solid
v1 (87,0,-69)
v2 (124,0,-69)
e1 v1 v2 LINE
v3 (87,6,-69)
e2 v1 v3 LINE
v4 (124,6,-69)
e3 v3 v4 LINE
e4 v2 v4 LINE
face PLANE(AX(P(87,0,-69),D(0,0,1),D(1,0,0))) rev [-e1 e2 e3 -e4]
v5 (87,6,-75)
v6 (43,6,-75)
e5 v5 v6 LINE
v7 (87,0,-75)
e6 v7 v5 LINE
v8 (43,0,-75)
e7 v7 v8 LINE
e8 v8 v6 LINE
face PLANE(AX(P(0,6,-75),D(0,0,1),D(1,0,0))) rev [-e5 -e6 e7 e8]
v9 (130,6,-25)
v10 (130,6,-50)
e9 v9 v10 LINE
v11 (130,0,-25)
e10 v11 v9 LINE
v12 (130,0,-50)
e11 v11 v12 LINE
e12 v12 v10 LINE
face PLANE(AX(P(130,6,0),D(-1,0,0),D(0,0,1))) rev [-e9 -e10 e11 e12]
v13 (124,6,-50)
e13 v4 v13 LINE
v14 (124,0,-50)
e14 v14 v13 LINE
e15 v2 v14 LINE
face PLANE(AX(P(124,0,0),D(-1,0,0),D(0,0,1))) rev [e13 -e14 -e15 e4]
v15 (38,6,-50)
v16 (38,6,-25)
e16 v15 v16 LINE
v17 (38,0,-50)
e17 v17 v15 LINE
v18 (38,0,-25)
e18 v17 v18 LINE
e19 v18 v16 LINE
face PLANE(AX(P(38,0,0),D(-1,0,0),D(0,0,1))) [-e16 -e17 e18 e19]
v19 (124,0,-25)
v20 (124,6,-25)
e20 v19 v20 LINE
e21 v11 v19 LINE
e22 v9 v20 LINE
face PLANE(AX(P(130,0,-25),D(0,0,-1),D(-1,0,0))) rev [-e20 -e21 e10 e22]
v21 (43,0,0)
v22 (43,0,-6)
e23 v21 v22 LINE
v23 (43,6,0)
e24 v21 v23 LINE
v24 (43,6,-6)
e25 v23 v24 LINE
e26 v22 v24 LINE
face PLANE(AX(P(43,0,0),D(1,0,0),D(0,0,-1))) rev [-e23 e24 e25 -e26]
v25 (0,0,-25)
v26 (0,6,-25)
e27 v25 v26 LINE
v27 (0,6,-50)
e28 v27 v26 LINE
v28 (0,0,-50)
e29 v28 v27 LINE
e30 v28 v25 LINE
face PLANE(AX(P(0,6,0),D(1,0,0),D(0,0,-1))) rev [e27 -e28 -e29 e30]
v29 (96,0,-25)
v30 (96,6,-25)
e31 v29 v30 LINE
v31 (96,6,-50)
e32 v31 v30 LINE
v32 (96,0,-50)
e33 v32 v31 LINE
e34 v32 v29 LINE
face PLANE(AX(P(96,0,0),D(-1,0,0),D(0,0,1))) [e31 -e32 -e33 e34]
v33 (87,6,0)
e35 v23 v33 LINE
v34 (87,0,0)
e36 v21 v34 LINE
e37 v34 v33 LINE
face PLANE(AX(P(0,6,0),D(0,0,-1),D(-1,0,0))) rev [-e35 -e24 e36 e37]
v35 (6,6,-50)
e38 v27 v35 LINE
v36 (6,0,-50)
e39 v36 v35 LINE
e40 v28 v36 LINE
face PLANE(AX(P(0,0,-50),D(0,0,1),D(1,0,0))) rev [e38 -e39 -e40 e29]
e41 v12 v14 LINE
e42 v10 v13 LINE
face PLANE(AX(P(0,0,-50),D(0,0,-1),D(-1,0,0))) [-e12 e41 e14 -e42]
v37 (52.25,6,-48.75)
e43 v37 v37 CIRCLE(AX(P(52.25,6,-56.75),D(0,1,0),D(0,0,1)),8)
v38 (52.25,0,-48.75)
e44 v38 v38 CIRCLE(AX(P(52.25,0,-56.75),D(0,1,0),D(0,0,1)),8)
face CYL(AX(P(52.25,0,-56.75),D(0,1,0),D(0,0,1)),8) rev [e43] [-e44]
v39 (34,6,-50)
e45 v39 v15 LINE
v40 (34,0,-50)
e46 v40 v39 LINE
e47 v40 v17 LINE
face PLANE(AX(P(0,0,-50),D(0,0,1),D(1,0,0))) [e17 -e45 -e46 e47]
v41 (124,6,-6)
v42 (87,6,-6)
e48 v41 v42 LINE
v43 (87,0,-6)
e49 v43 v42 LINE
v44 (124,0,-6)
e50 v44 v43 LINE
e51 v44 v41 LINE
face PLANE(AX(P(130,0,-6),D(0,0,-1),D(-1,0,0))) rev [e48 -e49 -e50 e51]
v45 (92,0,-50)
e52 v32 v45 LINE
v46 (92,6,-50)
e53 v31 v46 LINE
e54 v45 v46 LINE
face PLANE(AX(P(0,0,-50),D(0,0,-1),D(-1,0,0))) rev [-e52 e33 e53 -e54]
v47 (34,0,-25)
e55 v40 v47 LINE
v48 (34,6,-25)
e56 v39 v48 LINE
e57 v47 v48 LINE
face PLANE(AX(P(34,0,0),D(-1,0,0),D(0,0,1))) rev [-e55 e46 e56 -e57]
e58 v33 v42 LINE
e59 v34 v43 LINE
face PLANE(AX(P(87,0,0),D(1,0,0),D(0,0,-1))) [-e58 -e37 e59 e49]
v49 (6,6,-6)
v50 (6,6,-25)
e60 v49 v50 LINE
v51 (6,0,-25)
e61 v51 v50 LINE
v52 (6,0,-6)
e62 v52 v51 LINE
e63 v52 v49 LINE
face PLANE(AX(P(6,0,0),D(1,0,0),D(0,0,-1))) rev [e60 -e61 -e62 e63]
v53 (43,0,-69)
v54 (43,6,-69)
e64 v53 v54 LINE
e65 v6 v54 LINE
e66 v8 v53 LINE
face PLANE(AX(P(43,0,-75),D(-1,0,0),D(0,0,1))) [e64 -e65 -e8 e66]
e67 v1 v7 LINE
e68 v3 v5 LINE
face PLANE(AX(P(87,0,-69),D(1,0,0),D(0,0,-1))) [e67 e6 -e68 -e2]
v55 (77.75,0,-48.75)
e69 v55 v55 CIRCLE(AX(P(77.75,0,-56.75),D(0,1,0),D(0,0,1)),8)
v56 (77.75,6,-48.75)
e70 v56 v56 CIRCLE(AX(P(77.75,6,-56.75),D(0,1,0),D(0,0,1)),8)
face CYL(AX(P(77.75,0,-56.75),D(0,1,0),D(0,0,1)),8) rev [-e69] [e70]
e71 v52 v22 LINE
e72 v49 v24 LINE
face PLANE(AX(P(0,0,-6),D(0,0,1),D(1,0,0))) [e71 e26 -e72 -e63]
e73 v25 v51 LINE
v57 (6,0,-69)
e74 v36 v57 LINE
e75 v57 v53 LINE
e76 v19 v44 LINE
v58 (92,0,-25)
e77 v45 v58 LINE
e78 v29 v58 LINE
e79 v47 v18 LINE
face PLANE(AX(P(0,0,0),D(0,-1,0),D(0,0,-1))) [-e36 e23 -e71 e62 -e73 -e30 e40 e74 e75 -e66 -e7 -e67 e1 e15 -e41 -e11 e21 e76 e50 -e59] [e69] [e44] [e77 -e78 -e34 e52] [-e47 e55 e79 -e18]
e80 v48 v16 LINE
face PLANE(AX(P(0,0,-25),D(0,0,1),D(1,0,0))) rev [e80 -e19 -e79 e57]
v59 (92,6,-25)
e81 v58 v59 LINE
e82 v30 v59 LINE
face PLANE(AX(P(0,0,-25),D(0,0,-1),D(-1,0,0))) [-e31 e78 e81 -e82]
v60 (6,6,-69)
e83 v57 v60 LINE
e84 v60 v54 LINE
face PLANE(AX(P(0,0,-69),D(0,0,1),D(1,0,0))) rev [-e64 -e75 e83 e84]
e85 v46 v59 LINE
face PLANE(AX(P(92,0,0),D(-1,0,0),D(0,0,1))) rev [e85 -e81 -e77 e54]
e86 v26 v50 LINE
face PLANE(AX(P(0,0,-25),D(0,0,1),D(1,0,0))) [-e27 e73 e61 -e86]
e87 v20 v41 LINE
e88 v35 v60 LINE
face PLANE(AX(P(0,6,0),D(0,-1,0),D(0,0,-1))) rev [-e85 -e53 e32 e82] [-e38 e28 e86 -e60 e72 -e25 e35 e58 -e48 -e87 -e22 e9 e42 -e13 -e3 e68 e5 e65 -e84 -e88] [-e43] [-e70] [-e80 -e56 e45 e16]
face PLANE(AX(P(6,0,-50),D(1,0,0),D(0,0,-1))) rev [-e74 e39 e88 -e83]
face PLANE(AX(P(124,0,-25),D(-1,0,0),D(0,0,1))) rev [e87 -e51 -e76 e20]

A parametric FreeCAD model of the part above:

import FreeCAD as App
import Part
import Sketcher
from FreeCAD import Vector


def add_polygon(sketch, points):
    """Adds a closed chain of lines whose ends are joined by coincident constraints."""
    first, n = sketch.GeometryCount, len(points)
    for a, b in zip(points, points[1:] + points[:1]):
        sketch.addGeometry(Part.LineSegment(App.Vector(*a, 0), App.Vector(*b, 0)), False)
    for i in range(n):
        sketch.addConstraint(Sketcher.Constraint("Coincident", first + i, 2, first + (i + 1) % n, 1))

doc = App.newDocument("Part")
body = doc.addObject("PartDesign::Body", "Body")

sketch1 = body.newObject("Sketcher::SketchObject", "Sketch")
sketch1.AttachmentSupport = (doc.getObject("XZ_Plane"), [""])
sketch1.MapMode = "FlatFace"
add_polygon(sketch1, [(0, -75), (0, 0), (130, 0), (130, -75)])
sketch1.addConstraint([
    Sketcher.Constraint("Vertical", 0),
    Sketcher.Constraint("Horizontal", 1),
    Sketcher.Constraint("Vertical", 2),
    Sketcher.Constraint("Horizontal", 3),
    Sketcher.Constraint("Coincident", 0, 2, -1, 1),
    Sketcher.Constraint("DistanceX", 1, 1, 1, 2, 130.0),
    Sketcher.Constraint("DistanceY", 0, 1, 0, 2, 75.0),
])
pad1 = body.newObject("PartDesign::Pad", "Pad")
pad1.Profile = sketch1
pad1.Length = 6
pad1.Reversed = True

sketch2 = body.newObject("Sketcher::SketchObject", "Sketch001")
sketch2.AttachmentSupport = (doc.getObject("XZ_Plane"), [""])
sketch2.MapMode = "FlatFace"
sketch2.AttachmentOffset = App.Placement(Vector(0, 0, -6), App.Rotation())
sketch2.addGeometry([
    Part.Circle(Vector(52.25, -56.75, 0), Vector(0, 0, 1), 8),
    Part.Circle(Vector(77.75, -56.75, 0), Vector(0, 0, 1), 8),
], False)
sketch2.addConstraint([
    Sketcher.Constraint("Equal", 0, 1),
    Sketcher.Constraint("Horizontal", 0, 3, 1, 3),
    Sketcher.Constraint("Diameter", 0, 16.0),
    Sketcher.Constraint("DistanceX", 0, 3, 1, 3, 25.5),
    Sketcher.Constraint("DistanceX", -1, 1, 0, 3, 52.25),
    Sketcher.Constraint("DistanceY", 0, 3, -1, 1, 56.75),
])
pocket1 = body.newObject("PartDesign::Pocket", "Pocket")
pocket1.Profile = sketch2
pocket1.Length = 6
pocket1.Reversed = True

sketch3 = body.newObject("Sketcher::SketchObject", "Sketch002")
sketch3.AttachmentSupport = (doc.getObject("XZ_Plane"), [""])
sketch3.MapMode = "FlatFace"
sketch3.AttachmentOffset = App.Placement(Vector(0, 0, -6), App.Rotation())
add_polygon(sketch3, [(0, 0), (43, 0), (43, -6), (6, -6), (6, -25), (0, -25)])
add_polygon(sketch3, [(0, -50), (6, -50), (6, -69), (43, -69), (43, -75), (0, -75)])
add_polygon(sketch3, [(34, -50), (34, -25), (38, -25), (38, -50)])
add_polygon(sketch3, [(87, -6), (87, 0), (130, 0), (130, -25), (124, -25), (124, -6)])
add_polygon(sketch3, [(92, -50), (92, -25), (96, -25), (96, -50)])
add_polygon(sketch3, [(87, -75), (87, -69), (124, -69), (124, -50), (130, -50), (130, -75)])
sketch3.addConstraint([
    Sketcher.Constraint("Horizontal", 0),
    Sketcher.Constraint("Vertical", 1),
    Sketcher.Constraint("Horizontal", 2),
    Sketcher.Constraint("Vertical", 3),
    Sketcher.Constraint("Horizontal", 4),
    Sketcher.Constraint("Vertical", 5),
    Sketcher.Constraint("Horizontal", 6),
    Sketcher.Constraint("Vertical", 7),
    Sketcher.Constraint("Horizontal", 8),
    Sketcher.Constraint("Vertical", 9),
    Sketcher.Constraint("Horizontal", 10),
    Sketcher.Constraint("Vertical", 11),
    Sketcher.Constraint("Vertical", 12),
    Sketcher.Constraint("Horizontal", 13),
    Sketcher.Constraint("Vertical", 14),
    Sketcher.Constraint("Horizontal", 15),
    Sketcher.Constraint("Vertical", 16),
    Sketcher.Constraint("Horizontal", 17),
    Sketcher.Constraint("Vertical", 18),
    Sketcher.Constraint("Horizontal", 19),
    Sketcher.Constraint("Vertical", 20),
    Sketcher.Constraint("Horizontal", 21),
    Sketcher.Constraint("Vertical", 22),
    Sketcher.Constraint("Horizontal", 23),
    Sketcher.Constraint("Vertical", 24),
    Sketcher.Constraint("Horizontal", 25),
    Sketcher.Constraint("Vertical", 26),
    Sketcher.Constraint("Horizontal", 27),
    Sketcher.Constraint("Vertical", 28),
    Sketcher.Constraint("Horizontal", 29),
    Sketcher.Constraint("Vertical", 30),
    Sketcher.Constraint("Horizontal", 31),
    Sketcher.Constraint("Coincident", 5, 2, -1, 1),
    Sketcher.Constraint("PointOnObject", 10, 2, -2),
    Sketcher.Constraint("PointOnObject", 16, 2, -1),
    Sketcher.Constraint("Horizontal", 4, 2, 12, 2),
    Sketcher.Constraint("Horizontal", 11, 2, 14, 2),
    Sketcher.Constraint("Horizontal", 13, 2, 18, 2),
    Sketcher.Constraint("Horizontal", 2, 2, 20, 2),
    Sketcher.Constraint("Horizontal", 19, 2, 22, 2),
    Sketcher.Constraint("Horizontal", 15, 2, 24, 2),
    Sketcher.Constraint("Horizontal", 8, 2, 26, 2),
    Sketcher.Constraint("Horizontal", 25, 2, 28, 2),
    Sketcher.Constraint("Horizontal", 10, 2, 30, 2),
    Sketcher.Constraint("Vertical", 3, 2, 6, 2),
    Sketcher.Constraint("Vertical", 1, 2, 8, 2),
    Sketcher.Constraint("Vertical", 21, 2, 26, 2),
    Sketcher.Constraint("Vertical", 20, 2, 27, 2),
    Sketcher.Constraint("Vertical", 18, 2, 29, 2),
    Sketcher.Constraint("Equal", 10, 17),
    Sketcher.Constraint("Equal", 6, 19),
    Sketcher.Constraint("Equal", 15, 23),
    Sketcher.Constraint("Equal", 29, 1),
    Sketcher.Constraint("Equal", 3, 7),
    Sketcher.Constraint("Equal", 1, 9),
    Sketcher.Constraint("Equal", 11, 12),
    Sketcher.Constraint("DistanceX", 0, 1, 0, 2, 43.0),
    Sketcher.Constraint("DistanceX", 2, 2, 2, 1, 37.0),
    Sketcher.Constraint("DistanceX", 13, 1, 13, 2, 4.0),
    Sketcher.Constraint("DistanceY", 3, 2, 3, 1, 19.0),
    Sketcher.Constraint("DistanceX", -1, 1, 12, 2, 34.0),
    Sketcher.Constraint("DistanceX", -1, 1, 16, 2, 87.0),
    Sketcher.Constraint("DistanceX", -1, 1, 22, 2, 92.0),
])
pocket2 = body.newObject("PartDesign::Pocket", "Pocket001")
pocket2.Profile = sketch3
pocket2.Type = "ThroughAll"
pocket2.Reversed = True

doc.recompute()
